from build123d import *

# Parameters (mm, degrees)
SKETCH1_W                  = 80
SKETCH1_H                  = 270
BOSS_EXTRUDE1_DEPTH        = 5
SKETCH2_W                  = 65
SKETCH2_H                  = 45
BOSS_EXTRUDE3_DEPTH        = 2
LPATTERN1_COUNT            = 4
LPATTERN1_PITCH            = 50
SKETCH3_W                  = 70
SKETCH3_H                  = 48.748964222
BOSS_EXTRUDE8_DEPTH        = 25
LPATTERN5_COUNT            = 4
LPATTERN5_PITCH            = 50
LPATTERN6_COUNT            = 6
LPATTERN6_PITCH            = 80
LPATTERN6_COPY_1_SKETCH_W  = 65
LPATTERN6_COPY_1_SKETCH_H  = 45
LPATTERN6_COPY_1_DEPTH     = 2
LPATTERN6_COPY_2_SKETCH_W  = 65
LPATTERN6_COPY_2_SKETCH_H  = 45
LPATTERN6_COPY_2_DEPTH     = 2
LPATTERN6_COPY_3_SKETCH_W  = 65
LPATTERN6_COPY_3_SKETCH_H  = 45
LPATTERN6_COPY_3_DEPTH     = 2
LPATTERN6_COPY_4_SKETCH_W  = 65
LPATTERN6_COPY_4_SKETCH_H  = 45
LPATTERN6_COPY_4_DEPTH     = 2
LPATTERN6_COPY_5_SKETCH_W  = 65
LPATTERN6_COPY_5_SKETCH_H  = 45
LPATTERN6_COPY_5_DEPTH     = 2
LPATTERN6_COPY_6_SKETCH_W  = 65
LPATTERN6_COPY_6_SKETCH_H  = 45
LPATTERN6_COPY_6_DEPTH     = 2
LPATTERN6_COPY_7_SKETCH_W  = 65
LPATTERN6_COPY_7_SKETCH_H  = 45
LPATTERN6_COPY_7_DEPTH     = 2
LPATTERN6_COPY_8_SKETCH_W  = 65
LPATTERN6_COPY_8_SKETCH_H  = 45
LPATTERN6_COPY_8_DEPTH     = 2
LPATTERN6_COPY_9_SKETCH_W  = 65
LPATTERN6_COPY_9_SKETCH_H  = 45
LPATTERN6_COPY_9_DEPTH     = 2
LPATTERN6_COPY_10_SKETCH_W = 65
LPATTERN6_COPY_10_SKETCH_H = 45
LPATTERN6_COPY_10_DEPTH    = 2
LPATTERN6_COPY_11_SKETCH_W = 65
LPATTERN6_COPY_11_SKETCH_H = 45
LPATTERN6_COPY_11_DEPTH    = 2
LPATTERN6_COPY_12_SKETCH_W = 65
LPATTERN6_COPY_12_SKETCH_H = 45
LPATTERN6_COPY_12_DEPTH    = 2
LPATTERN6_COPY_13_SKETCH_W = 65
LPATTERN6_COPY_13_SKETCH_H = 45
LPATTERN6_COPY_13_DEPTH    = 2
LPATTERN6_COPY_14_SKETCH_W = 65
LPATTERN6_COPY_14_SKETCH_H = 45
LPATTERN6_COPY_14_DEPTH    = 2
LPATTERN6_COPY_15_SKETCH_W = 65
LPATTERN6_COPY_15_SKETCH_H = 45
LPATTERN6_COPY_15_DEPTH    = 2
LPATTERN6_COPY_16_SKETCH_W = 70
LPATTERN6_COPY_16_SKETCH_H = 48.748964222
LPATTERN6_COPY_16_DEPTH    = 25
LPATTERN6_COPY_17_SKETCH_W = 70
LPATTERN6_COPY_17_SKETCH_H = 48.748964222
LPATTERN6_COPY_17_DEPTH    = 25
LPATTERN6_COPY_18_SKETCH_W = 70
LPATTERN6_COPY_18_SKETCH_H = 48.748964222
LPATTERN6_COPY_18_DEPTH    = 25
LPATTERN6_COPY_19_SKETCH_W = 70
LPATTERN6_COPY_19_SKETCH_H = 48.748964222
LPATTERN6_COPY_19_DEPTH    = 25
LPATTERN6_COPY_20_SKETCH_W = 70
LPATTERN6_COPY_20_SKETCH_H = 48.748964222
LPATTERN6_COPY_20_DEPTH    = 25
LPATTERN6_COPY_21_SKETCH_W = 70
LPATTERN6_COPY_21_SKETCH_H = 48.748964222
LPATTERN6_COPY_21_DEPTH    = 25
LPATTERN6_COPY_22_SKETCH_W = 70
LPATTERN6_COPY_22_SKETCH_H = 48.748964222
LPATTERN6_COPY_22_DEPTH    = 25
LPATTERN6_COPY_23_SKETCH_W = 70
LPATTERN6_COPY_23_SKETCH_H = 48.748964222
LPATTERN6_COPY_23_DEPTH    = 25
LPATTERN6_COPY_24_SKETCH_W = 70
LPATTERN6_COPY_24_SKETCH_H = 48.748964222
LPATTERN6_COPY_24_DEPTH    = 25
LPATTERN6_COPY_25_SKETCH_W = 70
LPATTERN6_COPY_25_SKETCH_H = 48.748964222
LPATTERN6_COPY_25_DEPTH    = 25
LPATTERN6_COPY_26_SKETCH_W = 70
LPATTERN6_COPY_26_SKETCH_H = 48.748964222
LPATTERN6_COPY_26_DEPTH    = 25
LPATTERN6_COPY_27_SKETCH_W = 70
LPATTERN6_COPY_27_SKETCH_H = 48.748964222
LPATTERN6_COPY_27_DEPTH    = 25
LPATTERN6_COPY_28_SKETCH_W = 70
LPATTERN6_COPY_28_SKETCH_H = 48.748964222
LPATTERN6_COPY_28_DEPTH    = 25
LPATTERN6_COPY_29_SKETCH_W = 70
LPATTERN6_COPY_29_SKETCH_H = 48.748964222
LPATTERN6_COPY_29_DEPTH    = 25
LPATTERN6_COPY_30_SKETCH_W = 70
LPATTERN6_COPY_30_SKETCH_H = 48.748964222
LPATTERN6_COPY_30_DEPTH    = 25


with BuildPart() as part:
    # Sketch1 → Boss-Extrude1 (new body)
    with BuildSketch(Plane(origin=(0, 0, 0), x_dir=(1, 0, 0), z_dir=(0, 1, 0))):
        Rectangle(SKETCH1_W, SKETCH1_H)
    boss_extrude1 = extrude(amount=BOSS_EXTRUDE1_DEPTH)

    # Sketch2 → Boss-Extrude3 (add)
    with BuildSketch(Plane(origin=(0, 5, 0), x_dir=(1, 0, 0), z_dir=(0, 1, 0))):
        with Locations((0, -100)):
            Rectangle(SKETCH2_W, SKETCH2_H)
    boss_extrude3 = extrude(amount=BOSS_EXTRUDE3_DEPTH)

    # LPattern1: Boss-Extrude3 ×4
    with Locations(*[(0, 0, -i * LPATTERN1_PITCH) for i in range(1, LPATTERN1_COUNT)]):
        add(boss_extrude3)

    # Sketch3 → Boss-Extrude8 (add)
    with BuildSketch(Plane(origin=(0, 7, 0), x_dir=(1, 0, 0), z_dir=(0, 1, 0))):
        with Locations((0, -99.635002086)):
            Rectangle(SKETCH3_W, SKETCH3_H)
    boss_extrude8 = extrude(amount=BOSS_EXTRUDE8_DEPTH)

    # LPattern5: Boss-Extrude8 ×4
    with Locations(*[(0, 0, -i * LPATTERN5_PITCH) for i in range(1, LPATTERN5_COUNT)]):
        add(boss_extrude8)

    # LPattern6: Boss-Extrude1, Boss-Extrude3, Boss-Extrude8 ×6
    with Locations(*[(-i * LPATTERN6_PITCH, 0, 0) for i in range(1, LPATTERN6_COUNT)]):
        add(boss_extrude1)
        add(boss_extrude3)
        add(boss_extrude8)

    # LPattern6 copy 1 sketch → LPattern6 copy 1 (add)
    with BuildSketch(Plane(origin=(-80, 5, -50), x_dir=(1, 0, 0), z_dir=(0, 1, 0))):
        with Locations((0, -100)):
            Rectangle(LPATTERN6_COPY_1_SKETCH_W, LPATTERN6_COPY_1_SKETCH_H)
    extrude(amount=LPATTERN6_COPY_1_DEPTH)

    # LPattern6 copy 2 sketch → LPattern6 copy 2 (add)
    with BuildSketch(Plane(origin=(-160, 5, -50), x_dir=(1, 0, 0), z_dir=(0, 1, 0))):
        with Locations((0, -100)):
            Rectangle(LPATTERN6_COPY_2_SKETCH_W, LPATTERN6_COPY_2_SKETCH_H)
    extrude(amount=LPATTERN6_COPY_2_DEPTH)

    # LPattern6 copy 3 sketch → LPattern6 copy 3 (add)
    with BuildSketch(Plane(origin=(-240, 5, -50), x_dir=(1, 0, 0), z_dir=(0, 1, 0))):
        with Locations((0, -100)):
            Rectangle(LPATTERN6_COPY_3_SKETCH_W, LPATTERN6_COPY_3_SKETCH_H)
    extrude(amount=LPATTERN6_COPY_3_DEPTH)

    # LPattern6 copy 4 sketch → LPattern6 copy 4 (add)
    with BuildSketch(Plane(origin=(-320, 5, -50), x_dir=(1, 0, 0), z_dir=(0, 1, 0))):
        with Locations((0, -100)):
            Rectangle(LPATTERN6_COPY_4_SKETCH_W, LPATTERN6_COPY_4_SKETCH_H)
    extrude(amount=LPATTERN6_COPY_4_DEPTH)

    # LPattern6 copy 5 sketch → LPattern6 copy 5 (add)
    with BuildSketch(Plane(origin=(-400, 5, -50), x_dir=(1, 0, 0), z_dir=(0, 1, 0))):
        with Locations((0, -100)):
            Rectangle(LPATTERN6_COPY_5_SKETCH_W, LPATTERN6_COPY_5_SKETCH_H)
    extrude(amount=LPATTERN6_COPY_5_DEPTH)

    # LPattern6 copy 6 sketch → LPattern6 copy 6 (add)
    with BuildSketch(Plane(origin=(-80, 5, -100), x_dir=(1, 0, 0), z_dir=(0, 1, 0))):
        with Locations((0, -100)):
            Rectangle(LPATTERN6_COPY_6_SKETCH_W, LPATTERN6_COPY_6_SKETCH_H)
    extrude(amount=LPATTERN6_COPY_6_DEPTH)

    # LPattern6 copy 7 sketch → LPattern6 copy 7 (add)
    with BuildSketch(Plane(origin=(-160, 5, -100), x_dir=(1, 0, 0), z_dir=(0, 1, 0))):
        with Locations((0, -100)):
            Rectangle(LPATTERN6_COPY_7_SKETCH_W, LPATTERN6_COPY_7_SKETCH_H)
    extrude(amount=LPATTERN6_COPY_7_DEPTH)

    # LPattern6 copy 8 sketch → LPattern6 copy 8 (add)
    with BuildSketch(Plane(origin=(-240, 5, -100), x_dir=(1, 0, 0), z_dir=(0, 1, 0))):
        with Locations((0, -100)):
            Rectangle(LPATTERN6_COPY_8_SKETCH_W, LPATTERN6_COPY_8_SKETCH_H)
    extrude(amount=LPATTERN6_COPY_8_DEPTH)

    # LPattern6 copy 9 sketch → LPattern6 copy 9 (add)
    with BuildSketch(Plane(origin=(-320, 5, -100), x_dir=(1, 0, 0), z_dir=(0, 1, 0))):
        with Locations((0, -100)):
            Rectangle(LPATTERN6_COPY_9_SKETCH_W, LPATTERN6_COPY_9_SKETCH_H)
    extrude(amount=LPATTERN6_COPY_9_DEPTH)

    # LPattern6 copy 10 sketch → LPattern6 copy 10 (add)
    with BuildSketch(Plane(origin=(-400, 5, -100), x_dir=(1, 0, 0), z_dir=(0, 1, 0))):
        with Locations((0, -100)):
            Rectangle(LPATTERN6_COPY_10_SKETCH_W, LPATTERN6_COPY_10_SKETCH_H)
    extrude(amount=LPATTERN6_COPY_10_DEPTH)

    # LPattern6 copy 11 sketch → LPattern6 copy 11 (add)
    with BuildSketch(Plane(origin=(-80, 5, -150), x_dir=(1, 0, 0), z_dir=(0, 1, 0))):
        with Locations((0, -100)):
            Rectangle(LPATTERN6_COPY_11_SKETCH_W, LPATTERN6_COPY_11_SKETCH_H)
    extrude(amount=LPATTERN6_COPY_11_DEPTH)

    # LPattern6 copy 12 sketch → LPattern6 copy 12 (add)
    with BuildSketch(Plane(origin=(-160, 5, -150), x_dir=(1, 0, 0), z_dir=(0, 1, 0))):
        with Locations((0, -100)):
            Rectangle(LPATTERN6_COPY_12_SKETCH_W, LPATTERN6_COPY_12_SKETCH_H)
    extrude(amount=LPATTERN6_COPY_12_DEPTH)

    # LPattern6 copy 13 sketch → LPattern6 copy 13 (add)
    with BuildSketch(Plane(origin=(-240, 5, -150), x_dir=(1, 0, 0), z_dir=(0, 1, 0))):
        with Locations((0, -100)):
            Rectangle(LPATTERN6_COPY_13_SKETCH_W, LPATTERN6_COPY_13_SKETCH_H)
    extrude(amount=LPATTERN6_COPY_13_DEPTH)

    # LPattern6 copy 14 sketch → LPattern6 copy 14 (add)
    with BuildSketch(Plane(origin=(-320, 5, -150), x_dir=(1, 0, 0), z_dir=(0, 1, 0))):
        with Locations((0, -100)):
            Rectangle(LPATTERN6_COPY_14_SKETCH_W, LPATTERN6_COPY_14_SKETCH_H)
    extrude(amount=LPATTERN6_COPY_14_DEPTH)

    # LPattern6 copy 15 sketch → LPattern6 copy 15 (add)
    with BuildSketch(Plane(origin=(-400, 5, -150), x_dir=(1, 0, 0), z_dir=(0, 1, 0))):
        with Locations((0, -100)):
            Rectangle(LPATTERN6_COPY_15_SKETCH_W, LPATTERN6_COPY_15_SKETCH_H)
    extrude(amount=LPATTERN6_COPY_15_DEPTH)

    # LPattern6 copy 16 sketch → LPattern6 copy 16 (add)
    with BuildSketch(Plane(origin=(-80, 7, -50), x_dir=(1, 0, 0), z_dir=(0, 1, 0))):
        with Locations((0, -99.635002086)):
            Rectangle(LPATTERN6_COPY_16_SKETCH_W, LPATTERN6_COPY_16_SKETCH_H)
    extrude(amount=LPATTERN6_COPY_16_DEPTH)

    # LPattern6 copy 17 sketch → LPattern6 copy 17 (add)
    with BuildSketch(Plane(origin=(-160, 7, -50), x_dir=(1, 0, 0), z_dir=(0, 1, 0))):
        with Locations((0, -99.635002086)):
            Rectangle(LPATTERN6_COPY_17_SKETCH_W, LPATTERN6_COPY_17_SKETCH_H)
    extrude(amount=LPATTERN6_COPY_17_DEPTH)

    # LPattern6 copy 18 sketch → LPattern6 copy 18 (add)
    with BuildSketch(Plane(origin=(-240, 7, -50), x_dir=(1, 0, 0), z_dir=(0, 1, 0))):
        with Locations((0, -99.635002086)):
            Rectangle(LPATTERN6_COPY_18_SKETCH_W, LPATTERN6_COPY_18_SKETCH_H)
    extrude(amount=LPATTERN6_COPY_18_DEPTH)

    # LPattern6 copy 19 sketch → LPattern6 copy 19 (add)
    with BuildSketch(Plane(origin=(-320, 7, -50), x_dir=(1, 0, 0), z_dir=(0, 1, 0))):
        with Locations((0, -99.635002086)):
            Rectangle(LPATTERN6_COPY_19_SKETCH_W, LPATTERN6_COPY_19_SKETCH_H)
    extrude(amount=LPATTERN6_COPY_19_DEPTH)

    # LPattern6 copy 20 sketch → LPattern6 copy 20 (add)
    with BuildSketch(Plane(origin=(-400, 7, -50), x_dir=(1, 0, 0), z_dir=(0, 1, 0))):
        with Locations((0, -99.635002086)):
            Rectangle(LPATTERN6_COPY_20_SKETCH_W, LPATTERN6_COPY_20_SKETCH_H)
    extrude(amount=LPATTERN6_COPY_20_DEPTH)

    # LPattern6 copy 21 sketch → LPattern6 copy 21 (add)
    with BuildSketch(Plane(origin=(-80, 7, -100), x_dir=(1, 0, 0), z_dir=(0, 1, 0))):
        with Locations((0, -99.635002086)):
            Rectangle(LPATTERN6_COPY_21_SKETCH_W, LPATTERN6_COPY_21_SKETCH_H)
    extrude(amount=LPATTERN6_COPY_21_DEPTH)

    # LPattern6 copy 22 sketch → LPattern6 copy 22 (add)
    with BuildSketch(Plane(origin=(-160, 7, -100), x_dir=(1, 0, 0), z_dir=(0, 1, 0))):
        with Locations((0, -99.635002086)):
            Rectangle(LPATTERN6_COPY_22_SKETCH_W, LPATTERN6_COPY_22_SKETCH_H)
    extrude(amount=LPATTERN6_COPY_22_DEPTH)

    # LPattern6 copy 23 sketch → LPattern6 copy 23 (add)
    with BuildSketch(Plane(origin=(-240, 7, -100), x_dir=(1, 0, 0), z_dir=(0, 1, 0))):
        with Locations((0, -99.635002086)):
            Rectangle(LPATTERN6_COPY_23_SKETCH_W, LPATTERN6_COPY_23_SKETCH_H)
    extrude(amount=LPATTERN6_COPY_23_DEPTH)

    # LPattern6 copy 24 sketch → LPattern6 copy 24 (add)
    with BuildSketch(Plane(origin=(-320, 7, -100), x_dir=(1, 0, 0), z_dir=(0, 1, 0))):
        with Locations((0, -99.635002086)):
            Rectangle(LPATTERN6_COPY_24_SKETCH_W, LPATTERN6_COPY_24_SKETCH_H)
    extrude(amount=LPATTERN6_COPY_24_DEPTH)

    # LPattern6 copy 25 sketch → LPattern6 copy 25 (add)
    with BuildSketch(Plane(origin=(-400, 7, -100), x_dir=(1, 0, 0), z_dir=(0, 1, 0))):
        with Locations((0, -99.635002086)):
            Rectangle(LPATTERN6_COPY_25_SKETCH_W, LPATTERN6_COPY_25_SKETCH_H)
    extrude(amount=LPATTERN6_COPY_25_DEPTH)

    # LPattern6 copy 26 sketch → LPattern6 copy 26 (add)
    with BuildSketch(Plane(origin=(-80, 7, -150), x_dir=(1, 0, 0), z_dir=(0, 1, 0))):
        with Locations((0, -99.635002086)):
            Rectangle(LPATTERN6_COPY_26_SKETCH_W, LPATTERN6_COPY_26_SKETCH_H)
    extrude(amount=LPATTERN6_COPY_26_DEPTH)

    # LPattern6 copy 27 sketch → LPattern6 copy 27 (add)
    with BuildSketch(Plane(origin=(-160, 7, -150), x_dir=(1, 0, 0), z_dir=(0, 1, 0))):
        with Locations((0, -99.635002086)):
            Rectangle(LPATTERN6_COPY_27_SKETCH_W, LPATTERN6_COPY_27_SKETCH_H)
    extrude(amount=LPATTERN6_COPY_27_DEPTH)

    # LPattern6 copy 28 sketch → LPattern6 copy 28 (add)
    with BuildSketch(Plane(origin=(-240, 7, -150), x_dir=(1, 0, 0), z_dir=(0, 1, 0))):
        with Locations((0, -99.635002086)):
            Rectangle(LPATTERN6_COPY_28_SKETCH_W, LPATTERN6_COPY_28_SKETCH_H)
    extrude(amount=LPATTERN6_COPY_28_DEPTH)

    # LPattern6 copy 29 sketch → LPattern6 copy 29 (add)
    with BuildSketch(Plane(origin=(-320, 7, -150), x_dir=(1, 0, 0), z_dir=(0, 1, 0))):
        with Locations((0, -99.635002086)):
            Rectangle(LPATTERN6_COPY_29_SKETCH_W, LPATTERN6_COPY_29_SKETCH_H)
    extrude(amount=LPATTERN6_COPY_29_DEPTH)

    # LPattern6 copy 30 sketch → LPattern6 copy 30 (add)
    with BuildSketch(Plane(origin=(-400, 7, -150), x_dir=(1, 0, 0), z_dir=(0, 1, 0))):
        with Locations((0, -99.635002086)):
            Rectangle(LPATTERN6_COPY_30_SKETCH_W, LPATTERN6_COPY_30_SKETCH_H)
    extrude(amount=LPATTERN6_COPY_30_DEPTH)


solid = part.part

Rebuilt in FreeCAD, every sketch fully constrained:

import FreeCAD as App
import Part
import Sketcher

V = App.Vector


def add_polygon(sketch, points):
    """Adds a closed chain of lines whose ends are joined by coincident constraints."""
    first, n = sketch.GeometryCount, len(points)
    for a, b in zip(points, points[1:] + points[:1]):
        sketch.addGeometry(Part.LineSegment(App.Vector(*a, 0), App.Vector(*b, 0)), False)
    for i in range(n):
        sketch.addConstraint(Sketcher.Constraint("Coincident", first + i, 2, first + (i + 1) % n, 1))

doc = App.newDocument("Part")
body = doc.addObject("PartDesign::Body", "Body")

# Sketch on XZ plane
sketch1 = body.newObject("Sketcher::SketchObject", "Sketch")
sketch1.AttachmentSupport = (doc.getObject("XZ_Plane"), [""])
sketch1.MapMode = "FlatFace"
add_polygon(sketch1, [(-40, -135), (-40, 135), (40, 135), (40, -135)])  # lines 0-3
sketch1.addConstraint(Sketcher.Constraint("Vertical", 0))
sketch1.addConstraint(Sketcher.Constraint("Horizontal", 1))
sketch1.addConstraint(Sketcher.Constraint("Vertical", 2))
sketch1.addConstraint(Sketcher.Constraint("Horizontal", 3))
sketch1.addConstraint(Sketcher.Constraint("Symmetric", 0, 2, 2, 2, -1, 1))
sketch1.addConstraint(Sketcher.Constraint("DistanceX", 1, 1, 1, 2, 80.0))
sketch1.addConstraint(Sketcher.Constraint("DistanceY", 0, 1, 0, 2, 270.0))
pad1 = body.newObject("PartDesign::Pad", "Pad")
pad1.Profile = sketch1
pad1.Length = 5
pad1.Reversed = True

# Sketch on XZ plane
sketch2 = body.newObject("Sketcher::SketchObject", "Sketch001")
sketch2.AttachmentSupport = (doc.getObject("XZ_Plane"), [""])
sketch2.MapMode = "FlatFace"
sketch2.AttachmentOffset = App.Placement(V(0, 0, -5), App.Rotation())
add_polygon(sketch2, [(-32, 78), (-32, 122), (32, 122), (32, 78)])  # lines 0-3
sketch2.addConstraint(Sketcher.Constraint("Vertical", 0))
sketch2.addConstraint(Sketcher.Constraint("Horizontal", 1))
sketch2.addConstraint(Sketcher.Constraint("Vertical", 2))
sketch2.addConstraint(Sketcher.Constraint("Horizontal", 3))
sketch2.addConstraint(Sketcher.Constraint("DistanceX", 1, 1, 1, 2, 65.0))
sketch2.addConstraint(Sketcher.Constraint("DistanceY", 0, 1, 0, 2, 45.0))
sketch2.addConstraint(Sketcher.Constraint("DistanceX", 0, 2, -1, 1, 32.5))
sketch2.addConstraint(Sketcher.Constraint("DistanceY", -1, 1, 0, 2, 122.5))
pad2 = body.newObject("PartDesign::Pad", "Pad001")
pad2.Profile = sketch2
pad2.Length = 2
pad2.Reversed = True
doc.recompute()

linearpattern = body.newObject("PartDesign::LinearPattern", "LinearPattern")
linearpattern.Originals = [pad2]
linearpattern.Direction = (doc.getObject("Z_Axis"), [""])
linearpattern.Mode = "offset"
linearpattern.Offset = 50
linearpattern.Occurrences = 4
linearpattern.Reversed = True
body.Tip = linearpattern

# Sketch on XZ plane
sketch3 = body.newObject("Sketcher::SketchObject", "Sketch002")
sketch3.AttachmentSupport = (doc.getObject("XZ_Plane"), [""])
sketch3.MapMode = "FlatFace"
sketch3.AttachmentOffset = App.Placement(V(0, 0, -7), App.Rotation())
add_polygon(sketch3, [(-35, 75), (-35, 124), (35, 124), (35, 75)])  # lines 0-3
sketch3.addConstraint(Sketcher.Constraint("Vertical", 0))
sketch3.addConstraint(Sketcher.Constraint("Horizontal", 1))
sketch3.addConstraint(Sketcher.Constraint("Vertical", 2))
sketch3.addConstraint(Sketcher.Constraint("Horizontal", 3))
sketch3.addConstraint(Sketcher.Constraint("DistanceX", 1, 1, 1, 2, 70.0))
sketch3.addConstraint(Sketcher.Constraint("DistanceX", 0, 2, -1, 1, 35.0))
sketch3.addConstraint(Sketcher.Constraint("DistanceY", 0, 1, 0, 2, 48.748964))
sketch3.addConstraint(Sketcher.Constraint("DistanceY", -1, 1, 2, 2, 75.26052))
pad3 = body.newObject("PartDesign::Pad", "Pad002")
pad3.Profile = sketch3
pad3.Length = 25
pad3.Reversed = True
doc.recompute()

linearpattern2 = body.newObject("PartDesign::LinearPattern", "LinearPattern001")
linearpattern2.Originals = [pad3]
linearpattern2.Direction = (doc.getObject("Z_Axis"), [""])
linearpattern2.Mode = "offset"
linearpattern2.Offset = 50
linearpattern2.Occurrences = 4
linearpattern2.Reversed = True
body.Tip = linearpattern2
doc.recompute()

linearpattern3 = body.newObject("PartDesign::LinearPattern", "LinearPattern002")
linearpattern3.Originals = [pad1, pad2, pad3]
linearpattern3.Direction = (doc.getObject("X_Axis"), [""])
linearpattern3.Mode = "offset"
linearpattern3.Offset = 80
linearpattern3.Occurrences = 6
linearpattern3.Reversed = True
body.Tip = linearpattern3

# Sketch on XZ plane
sketch4 = body.newObject("Sketcher::SketchObject", "Sketch003")
sketch4.AttachmentSupport = (doc.getObject("XZ_Plane"), [""])
sketch4.MapMode = "FlatFace"
sketch4.AttachmentOffset = App.Placement(V(0, 0, -5), App.Rotation())
add_polygon(sketch4, [(-112, 28), (-112, 72), (-48, 72), (-48, 28)])  # lines 0-3
sketch4.addConstraint(Sketcher.Constraint("Vertical", 0))
sketch4.addConstraint(Sketcher.Constraint("Horizontal", 1))
sketch4.addConstraint(Sketcher.Constraint("Vertical", 2))
sketch4.addConstraint(Sketcher.Constraint("Horizontal", 3))
sketch4.addConstraint(Sketcher.Constraint("DistanceX", 1, 1, 1, 2, 65.0))
sketch4.addConstraint(Sketcher.Constraint("DistanceY", 0, 1, 0, 2, 45.0))
sketch4.addConstraint(Sketcher.Constraint("DistanceX", 0, 2, -1, 1, 112.5))
sketch4.addConstraint(Sketcher.Constraint("DistanceY", -1, 1, 0, 2, 72.5))
pad4 = body.newObject("PartDesign::Pad", "Pad003")
pad4.Profile = sketch4
pad4.Length = 2
pad4.Reversed = True

# Sketch on XZ plane
sketch5 = body.newObject("Sketcher::SketchObject", "Sketch004")
sketch5.AttachmentSupport = (doc.getObject("XZ_Plane"), [""])
sketch5.MapMode = "FlatFace"
sketch5.AttachmentOffset = App.Placement(V(0, 0, -5), App.Rotation())
add_polygon(sketch5, [(-192, 28), (-192, 72), (-128, 72), (-128, 28)])  # lines 0-3
sketch5.addConstraint(Sketcher.Constraint("Vertical", 0))
sketch5.addConstraint(Sketcher.Constraint("Horizontal", 1))
sketch5.addConstraint(Sketcher.Constraint("Vertical", 2))
sketch5.addConstraint(Sketcher.Constraint("Horizontal", 3))
sketch5.addConstraint(Sketcher.Constraint("DistanceX", 1, 1, 1, 2, 65.0))
sketch5.addConstraint(Sketcher.Constraint("DistanceY", 0, 1, 0, 2, 45.0))
sketch5.addConstraint(Sketcher.Constraint("DistanceX", 0, 2, -1, 1, 192.5))
sketch5.addConstraint(Sketcher.Constraint("DistanceY", -1, 1, 0, 2, 72.5))
pad5 = body.newObject("PartDesign::Pad", "Pad004")
pad5.Profile = sketch5
pad5.Length = 2
pad5.Reversed = True

# Sketch on XZ plane
sketch6 = body.newObject("Sketcher::SketchObject", "Sketch005")
sketch6.AttachmentSupport = (doc.getObject("XZ_Plane"), [""])
sketch6.MapMode = "FlatFace"
sketch6.AttachmentOffset = App.Placement(V(0, 0, -5), App.Rotation())
add_polygon(sketch6, [(-272, 28), (-272, 72), (-208, 72), (-208, 28)])  # lines 0-3
sketch6.addConstraint(Sketcher.Constraint("Vertical", 0))
sketch6.addConstraint(Sketcher.Constraint("Horizontal", 1))
sketch6.addConstraint(Sketcher.Constraint("Vertical", 2))
sketch6.addConstraint(Sketcher.Constraint("Horizontal", 3))
sketch6.addConstraint(Sketcher.Constraint("DistanceX", 1, 1, 1, 2, 65.0))
sketch6.addConstraint(Sketcher.Constraint("DistanceY", 0, 1, 0, 2, 45.0))
sketch6.addConstraint(Sketcher.Constraint("DistanceX", 0, 2, -1, 1, 272.5))
sketch6.addConstraint(Sketcher.Constraint("DistanceY", -1, 1, 0, 2, 72.5))
pad6 = body.newObject("PartDesign::Pad", "Pad005")
pad6.Profile = sketch6
pad6.Length = 2
pad6.Reversed = True

# Sketch on XZ plane
sketch7 = body.newObject("Sketcher::SketchObject", "Sketch006")
sketch7.AttachmentSupport = (doc.getObject("XZ_Plane"), [""])
sketch7.MapMode = "FlatFace"
sketch7.AttachmentOffset = App.Placement(V(0, 0, -5), App.Rotation())
add_polygon(sketch7, [(-352, 28), (-352, 72), (-288, 72), (-288, 28)])  # lines 0-3
sketch7.addConstraint(Sketcher.Constraint("Vertical", 0))
sketch7.addConstraint(Sketcher.Constraint("Horizontal", 1))
sketch7.addConstraint(Sketcher.Constraint("Vertical", 2))
sketch7.addConstraint(Sketcher.Constraint("Horizontal", 3))
sketch7.addConstraint(Sketcher.Constraint("DistanceX", 1, 1, 1, 2, 65.0))
sketch7.addConstraint(Sketcher.Constraint("DistanceY", 0, 1, 0, 2, 45.0))
sketch7.addConstraint(Sketcher.Constraint("DistanceX", 0, 2, -1, 1, 352.5))
sketch7.addConstraint(Sketcher.Constraint("DistanceY", -1, 1, 0, 2, 72.5))
pad7 = body.newObject("PartDesign::Pad", "Pad006")
pad7.Profile = sketch7
pad7.Length = 2
pad7.Reversed = True

# Sketch on XZ plane
sketch8 = body.newObject("Sketcher::SketchObject", "Sketch007")
sketch8.AttachmentSupport = (doc.getObject("XZ_Plane"), [""])
sketch8.MapMode = "FlatFace"
sketch8.AttachmentOffset = App.Placement(V(0, 0, -5), App.Rotation())
add_polygon(sketch8, [(-432, 28), (-432, 72), (-368, 72), (-368, 28)])  # lines 0-3
sketch8.addConstraint(Sketcher.Constraint("Vertical", 0))
sketch8.addConstraint(Sketcher.Constraint("Horizontal", 1))
sketch8.addConstraint(Sketcher.Constraint("Vertical", 2))
sketch8.addConstraint(Sketcher.Constraint("Horizontal", 3))
sketch8.addConstraint(Sketcher.Constraint("DistanceX", 1, 1, 1, 2, 65.0))
sketch8.addConstraint(Sketcher.Constraint("DistanceY", 0, 1, 0, 2, 45.0))
sketch8.addConstraint(Sketcher.Constraint("DistanceX", 0, 2, -1, 1, 432.5))
sketch8.addConstraint(Sketcher.Constraint("DistanceY", -1, 1, 0, 2, 72.5))
pad8 = body.newObject("PartDesign::Pad", "Pad007")
pad8.Profile = sketch8
pad8.Length = 2
pad8.Reversed = True

# Sketch on XZ plane
sketch9 = body.newObject("Sketcher::SketchObject", "Sketch008")
sketch9.AttachmentSupport = (doc.getObject("XZ_Plane"), [""])
sketch9.MapMode = "FlatFace"
sketch9.AttachmentOffset = App.Placement(V(0, 0, -5), App.Rotation())
add_polygon(sketch9, [(-112, -22), (-112, 22), (-48, 22), (-48, -22)])  # lines 0-3
sketch9.addConstraint(Sketcher.Constraint("Vertical", 0))
sketch9.addConstraint(Sketcher.Constraint("Horizontal", 1))
sketch9.addConstraint(Sketcher.Constraint("Vertical", 2))
sketch9.addConstraint(Sketcher.Constraint("Horizontal", 3))
sketch9.addConstraint(Sketcher.Constraint("DistanceX", 1, 1, 1, 2, 65.0))
sketch9.addConstraint(Sketcher.Constraint("DistanceY", 0, 1, 0, 2, 45.0))
sketch9.addConstraint(Sketcher.Constraint("DistanceX", 0, 2, -1, 1, 112.5))
sketch9.addConstraint(Sketcher.Constraint("DistanceY", -1, 1, 0, 2, 22.5))
pad9 = body.newObject("PartDesign::Pad", "Pad008")
pad9.Profile = sketch9
pad9.Length = 2
pad9.Reversed = True

# Sketch on XZ plane
sketch10 = body.newObject("Sketcher::SketchObject", "Sketch009")
sketch10.AttachmentSupport = (doc.getObject("XZ_Plane"), [""])
sketch10.MapMode = "FlatFace"
sketch10.AttachmentOffset = App.Placement(V(0, 0, -5), App.Rotation())
add_polygon(sketch10, [(-192, -22), (-192, 22), (-128, 22), (-128, -22)])  # lines 0-3
sketch10.addConstraint(Sketcher.Constraint("Vertical", 0))
sketch10.addConstraint(Sketcher.Constraint("Horizontal", 1))
sketch10.addConstraint(Sketcher.Constraint("Vertical", 2))
sketch10.addConstraint(Sketcher.Constraint("Horizontal", 3))
sketch10.addConstraint(Sketcher.Constraint("DistanceX", 1, 1, 1, 2, 65.0))
sketch10.addConstraint(Sketcher.Constraint("DistanceY", 0, 1, 0, 2, 45.0))
sketch10.addConstraint(Sketcher.Constraint("DistanceX", 0, 2, -1, 1, 192.5))
sketch10.addConstraint(Sketcher.Constraint("DistanceY", -1, 1, 0, 2, 22.5))
pad10 = body.newObject("PartDesign::Pad", "Pad009")
pad10.Profile = sketch10
pad10.Length = 2
pad10.Reversed = True

# Sketch on XZ plane
sketch11 = body.newObject("Sketcher::SketchObject", "Sketch010")
sketch11.AttachmentSupport = (doc.getObject("XZ_Plane"), [""])
sketch11.MapMode = "FlatFace"
sketch11.AttachmentOffset = App.Placement(V(0, 0, -5), App.Rotation())
add_polygon(sketch11, [(-272, -22), (-272, 22), (-208, 22), (-208, -22)])  # lines 0-3
sketch11.addConstraint(Sketcher.Constraint("Vertical", 0))
sketch11.addConstraint(Sketcher.Constraint("Horizontal", 1))
sketch11.addConstraint(Sketcher.Constraint("Vertical", 2))
sketch11.addConstraint(Sketcher.Constraint("Horizontal", 3))
sketch11.addConstraint(Sketcher.Constraint("DistanceX", 1, 1, 1, 2, 65.0))
sketch11.addConstraint(Sketcher.Constraint("DistanceY", 0, 1, 0, 2, 45.0))
sketch11.addConstraint(Sketcher.Constraint("DistanceX", 0, 2, -1, 1, 272.5))
sketch11.addConstraint(Sketcher.Constraint("DistanceY", -1, 1, 0, 2, 22.5))
pad11 = body.newObject("PartDesign::Pad", "Pad010")
pad11.Profile = sketch11
pad11.Length = 2
pad11.Reversed = True

# Sketch on XZ plane
sketch12 = body.newObject("Sketcher::SketchObject", "Sketch011")
sketch12.AttachmentSupport = (doc.getObject("XZ_Plane"), [""])
sketch12.MapMode = "FlatFace"
sketch12.AttachmentOffset = App.Placement(V(0, 0, -5), App.Rotation())
add_polygon(sketch12, [(-352, -22), (-352, 22), (-288, 22), (-288, -22)])  # lines 0-3
sketch12.addConstraint(Sketcher.Constraint("Vertical", 0))
sketch12.addConstraint(Sketcher.Constraint("Horizontal", 1))
sketch12.addConstraint(Sketcher.Constraint("Vertical", 2))
sketch12.addConstraint(Sketcher.Constraint("Horizontal", 3))
sketch12.addConstraint(Sketcher.Constraint("DistanceX", 1, 1, 1, 2, 65.0))
sketch12.addConstraint(Sketcher.Constraint("DistanceY", 0, 1, 0, 2, 45.0))
sketch12.addConstraint(Sketcher.Constraint("DistanceX", 0, 2, -1, 1, 352.5))
sketch12.addConstraint(Sketcher.Constraint("DistanceY", -1, 1, 0, 2, 22.5))
pad12 = body.newObject("PartDesign::Pad", "Pad011")
pad12.Profile = sketch12
pad12.Length = 2
pad12.Reversed = True

# Sketch on XZ plane
sketch13 = body.newObject("Sketcher::SketchObject", "Sketch012")
sketch13.AttachmentSupport = (doc.getObject("XZ_Plane"), [""])
sketch13.MapMode = "FlatFace"
sketch13.AttachmentOffset = App.Placement(V(0, 0, -5), App.Rotation())
add_polygon(sketch13, [(-432, -22), (-432, 22), (-368, 22), (-368, -22)])  # lines 0-3
sketch13.addConstraint(Sketcher.Constraint("Vertical", 0))
sketch13.addConstraint(Sketcher.Constraint("Horizontal", 1))
sketch13.addConstraint(Sketcher.Constraint("Vertical", 2))
sketch13.addConstraint(Sketcher.Constraint("Horizontal", 3))
sketch13.addConstraint(Sketcher.Constraint("DistanceX", 1, 1, 1, 2, 65.0))
sketch13.addConstraint(Sketcher.Constraint("DistanceY", 0, 1, 0, 2, 45.0))
sketch13.addConstraint(Sketcher.Constraint("DistanceX", 0, 2, -1, 1, 432.5))
sketch13.addConstraint(Sketcher.Constraint("DistanceY", -1, 1, 0, 2, 22.5))
pad13 = body.newObject("PartDesign::Pad", "Pad012")
pad13.Profile = sketch13
pad13.Length = 2
pad13.Reversed = True

# Sketch on XZ plane
sketch14 = body.newObject("Sketcher::SketchObject", "Sketch013")
sketch14.AttachmentSupport = (doc.getObject("XZ_Plane"), [""])
sketch14.MapMode = "FlatFace"
sketch14.AttachmentOffset = App.Placement(V(0, 0, -5), App.Rotation())
add_polygon(sketch14, [(-112, -72), (-112, -28), (-48, -28), (-48, -72)])  # lines 0-3
sketch14.addConstraint(Sketcher.Constraint("Vertical", 0))
sketch14.addConstraint(Sketcher.Constraint("Horizontal", 1))
sketch14.addConstraint(Sketcher.Constraint("Vertical", 2))
sketch14.addConstraint(Sketcher.Constraint("Horizontal", 3))
sketch14.addConstraint(Sketcher.Constraint("DistanceX", 1, 1, 1, 2, 65.0))
sketch14.addConstraint(Sketcher.Constraint("DistanceY", 0, 1, 0, 2, 45.0))
sketch14.addConstraint(Sketcher.Constraint("DistanceX", 0, 2, -1, 1, 112.5))
sketch14.addConstraint(Sketcher.Constraint("DistanceY", 0, 2, -1, 1, 27.5))
pad14 = body.newObject("PartDesign::Pad", "Pad013")
pad14.Profile = sketch14
pad14.Length = 2
pad14.Reversed = True

# Sketch on XZ plane
sketch15 = body.newObject("Sketcher::SketchObject", "Sketch014")
sketch15.AttachmentSupport = (doc.getObject("XZ_Plane"), [""])
sketch15.MapMode = "FlatFace"
sketch15.AttachmentOffset = App.Placement(V(0, 0, -5), App.Rotation())
add_polygon(sketch15, [(-192, -72), (-192, -28), (-128, -28), (-128, -72)])  # lines 0-3
sketch15.addConstraint(Sketcher.Constraint("Vertical", 0))
sketch15.addConstraint(Sketcher.Constraint("Horizontal", 1))
sketch15.addConstraint(Sketcher.Constraint("Vertical", 2))
sketch15.addConstraint(Sketcher.Constraint("Horizontal", 3))
sketch15.addConstraint(Sketcher.Constraint("DistanceX", 1, 1, 1, 2, 65.0))
sketch15.addConstraint(Sketcher.Constraint("DistanceY", 0, 1, 0, 2, 45.0))
sketch15.addConstraint(Sketcher.Constraint("DistanceX", 0, 2, -1, 1, 192.5))
sketch15.addConstraint(Sketcher.Constraint("DistanceY", 0, 2, -1, 1, 27.5))
pad15 = body.newObject("PartDesign::Pad", "Pad014")
pad15.Profile = sketch15
pad15.Length = 2
pad15.Reversed = True

# Sketch on XZ plane
sketch16 = body.newObject("Sketcher::SketchObject", "Sketch015")
sketch16.AttachmentSupport = (doc.getObject("XZ_Plane"), [""])
sketch16.MapMode = "FlatFace"
sketch16.AttachmentOffset = App.Placement(V(0, 0, -5), App.Rotation())
add_polygon(sketch16, [(-272, -72), (-272, -28), (-208, -28), (-208, -72)])  # lines 0-3
sketch16.addConstraint(Sketcher.Constraint("Vertical", 0))
sketch16.addConstraint(Sketcher.Constraint("Horizontal", 1))
sketch16.addConstraint(Sketcher.Constraint("Vertical", 2))
sketch16.addConstraint(Sketcher.Constraint("Horizontal", 3))
sketch16.addConstraint(Sketcher.Constraint("DistanceX", 1, 1, 1, 2, 65.0))
sketch16.addConstraint(Sketcher.Constraint("DistanceY", 0, 1, 0, 2, 45.0))
sketch16.addConstraint(Sketcher.Constraint("DistanceX", 0, 2, -1, 1, 272.5))
sketch16.addConstraint(Sketcher.Constraint("DistanceY", 0, 2, -1, 1, 27.5))
pad16 = body.newObject("PartDesign::Pad", "Pad015")
pad16.Profile = sketch16
pad16.Length = 2
pad16.Reversed = True

# Sketch on XZ plane
sketch17 = body.newObject("Sketcher::SketchObject", "Sketch016")
sketch17.AttachmentSupport = (doc.getObject("XZ_Plane"), [""])
sketch17.MapMode = "FlatFace"
sketch17.AttachmentOffset = App.Placement(V(0, 0, -5), App.Rotation())
add_polygon(sketch17, [(-352, -72), (-352, -28), (-288, -28), (-288, -72)])  # lines 0-3
sketch17.addConstraint(Sketcher.Constraint("Vertical", 0))
sketch17.addConstraint(Sketcher.Constraint("Horizontal", 1))
sketch17.addConstraint(Sketcher.Constraint("Vertical", 2))
sketch17.addConstraint(Sketcher.Constraint("Horizontal", 3))
sketch17.addConstraint(Sketcher.Constraint("DistanceX", 1, 1, 1, 2, 65.0))
sketch17.addConstraint(Sketcher.Constraint("DistanceY", 0, 1, 0, 2, 45.0))
sketch17.addConstraint(Sketcher.Constraint("DistanceX", 0, 2, -1, 1, 352.5))
sketch17.addConstraint(Sketcher.Constraint("DistanceY", 0, 2, -1, 1, 27.5))
pad17 = body.newObject("PartDesign::Pad", "Pad016")
pad17.Profile = sketch17
pad17.Length = 2
pad17.Reversed = True

# Sketch on XZ plane
sketch18 = body.newObject("Sketcher::SketchObject", "Sketch017")
sketch18.AttachmentSupport = (doc.getObject("XZ_Plane"), [""])
sketch18.MapMode = "FlatFace"
sketch18.AttachmentOffset = App.Placement(V(0, 0, -5), App.Rotation())
add_polygon(sketch18, [(-432, -72), (-432, -28), (-368, -28), (-368, -72)])  # lines 0-3
sketch18.addConstraint(Sketcher.Constraint("Vertical", 0))
sketch18.addConstraint(Sketcher.Constraint("Horizontal", 1))
sketch18.addConstraint(Sketcher.Constraint("Vertical", 2))
sketch18.addConstraint(Sketcher.Constraint("Horizontal", 3))
sketch18.addConstraint(Sketcher.Constraint("DistanceX", 1, 1, 1, 2, 65.0))
sketch18.addConstraint(Sketcher.Constraint("DistanceY", 0, 1, 0, 2, 45.0))
sketch18.addConstraint(Sketcher.Constraint("DistanceX", 0, 2, -1, 1, 432.5))
sketch18.addConstraint(Sketcher.Constraint("DistanceY", 0, 2, -1, 1, 27.5))
pad18 = body.newObject("PartDesign::Pad", "Pad017")
pad18.Profile = sketch18
pad18.Length = 2
pad18.Reversed = True

# Sketch on XZ plane
sketch19 = body.newObject("Sketcher::SketchObject", "Sketch018")
sketch19.AttachmentSupport = (doc.getObject("XZ_Plane"), [""])
sketch19.MapMode = "FlatFace"
sketch19.AttachmentOffset = App.Placement(V(0, 0, -7), App.Rotation())
add_polygon(sketch19, [(-115, 25), (-115, 74), (-45, 74), (-45, 25)])  # lines 0-3
sketch19.addConstraint(Sketcher.Constraint("Vertical", 0))
sketch19.addConstraint(Sketcher.Constraint("Horizontal", 1))
sketch19.addConstraint(Sketcher.Constraint("Vertical", 2))
sketch19.addConstraint(Sketcher.Constraint("Horizontal", 3))
sketch19.addConstraint(Sketcher.Constraint("DistanceX", 1, 1, 1, 2, 70.0))
sketch19.addConstraint(Sketcher.Constraint("DistanceX", 0, 2, -1, 1, 115.0))
sketch19.addConstraint(Sketcher.Constraint("DistanceY", 0, 1, 0, 2, 48.748964))
sketch19.addConstraint(Sketcher.Constraint("DistanceY", -1, 1, 2, 2, 25.26052))
pad19 = body.newObject("PartDesign::Pad", "Pad018")
pad19.Profile = sketch19
pad19.Length = 25
pad19.Reversed = True

# Sketch on XZ plane
sketch20 = body.newObject("Sketcher::SketchObject", "Sketch019")
sketch20.AttachmentSupport = (doc.getObject("XZ_Plane"), [""])
sketch20.MapMode = "FlatFace"
sketch20.AttachmentOffset = App.Placement(V(0, 0, -7), App.Rotation())
add_polygon(sketch20, [(-195, 25), (-195, 74), (-125, 74), (-125, 25)])  # lines 0-3
sketch20.addConstraint(Sketcher.Constraint("Vertical", 0))
sketch20.addConstraint(Sketcher.Constraint("Horizontal", 1))
sketch20.addConstraint(Sketcher.Constraint("Vertical", 2))
sketch20.addConstraint(Sketcher.Constraint("Horizontal", 3))
sketch20.addConstraint(Sketcher.Constraint("DistanceX", 1, 1, 1, 2, 70.0))
sketch20.addConstraint(Sketcher.Constraint("DistanceX", 0, 2, -1, 1, 195.0))
sketch20.addConstraint(Sketcher.Constraint("DistanceY", 0, 1, 0, 2, 48.748964))
sketch20.addConstraint(Sketcher.Constraint("DistanceY", -1, 1, 2, 2, 25.26052))
pad20 = body.newObject("PartDesign::Pad", "Pad019")
pad20.Profile = sketch20
pad20.Length = 25
pad20.Reversed = True

# Sketch on XZ plane
sketch21 = body.newObject("Sketcher::SketchObject", "Sketch020")
sketch21.AttachmentSupport = (doc.getObject("XZ_Plane"), [""])
sketch21.MapMode = "FlatFace"
sketch21.AttachmentOffset = App.Placement(V(0, 0, -7), App.Rotation())
add_polygon(sketch21, [(-275, 25), (-275, 74), (-205, 74), (-205, 25)])  # lines 0-3
sketch21.addConstraint(Sketcher.Constraint("Vertical", 0))
sketch21.addConstraint(Sketcher.Constraint("Horizontal", 1))
sketch21.addConstraint(Sketcher.Constraint("Vertical", 2))
sketch21.addConstraint(Sketcher.Constraint("Horizontal", 3))
sketch21.addConstraint(Sketcher.Constraint("DistanceX", 1, 1, 1, 2, 70.0))
sketch21.addConstraint(Sketcher.Constraint("DistanceX", 0, 2, -1, 1, 275.0))
sketch21.addConstraint(Sketcher.Constraint("DistanceY", 0, 1, 0, 2, 48.748964))
sketch21.addConstraint(Sketcher.Constraint("DistanceY", -1, 1, 2, 2, 25.26052))
pad21 = body.newObject("PartDesign::Pad", "Pad020")
pad21.Profile = sketch21
pad21.Length = 25
pad21.Reversed = True

# Sketch on XZ plane
sketch22 = body.newObject("Sketcher::SketchObject", "Sketch021")
sketch22.AttachmentSupport = (doc.getObject("XZ_Plane"), [""])
sketch22.MapMode = "FlatFace"
sketch22.AttachmentOffset = App.Placement(V(0, 0, -7), App.Rotation())
add_polygon(sketch22, [(-355, 25), (-355, 74), (-285, 74), (-285, 25)])  # lines 0-3
sketch22.addConstraint(Sketcher.Constraint("Vertical", 0))
sketch22.addConstraint(Sketcher.Constraint("Horizontal", 1))
sketch22.addConstraint(Sketcher.Constraint("Vertical", 2))
sketch22.addConstraint(Sketcher.Constraint("Horizontal", 3))
sketch22.addConstraint(Sketcher.Constraint("DistanceX", 1, 1, 1, 2, 70.0))
sketch22.addConstraint(Sketcher.Constraint("DistanceX", 0, 2, -1, 1, 355.0))
sketch22.addConstraint(Sketcher.Constraint("DistanceY", 0, 1, 0, 2, 48.748964))
sketch22.addConstraint(Sketcher.Constraint("DistanceY", -1, 1, 2, 2, 25.26052))
pad22 = body.newObject("PartDesign::Pad", "Pad021")
pad22.Profile = sketch22
pad22.Length = 25
pad22.Reversed = True

# Sketch on XZ plane
sketch23 = body.newObject("Sketcher::SketchObject", "Sketch022")
sketch23.AttachmentSupport = (doc.getObject("XZ_Plane"), [""])
sketch23.MapMode = "FlatFace"
sketch23.AttachmentOffset = App.Placement(V(0, 0, -7), App.Rotation())
add_polygon(sketch23, [(-435, 25), (-435, 74), (-365, 74), (-365, 25)])  # lines 0-3
sketch23.addConstraint(Sketcher.Constraint("Vertical", 0))
sketch23.addConstraint(Sketcher.Constraint("Horizontal", 1))
sketch23.addConstraint(Sketcher.Constraint("Vertical", 2))
sketch23.addConstraint(Sketcher.Constraint("Horizontal", 3))
sketch23.addConstraint(Sketcher.Constraint("DistanceX", 1, 1, 1, 2, 70.0))
sketch23.addConstraint(Sketcher.Constraint("DistanceX", 0, 2, -1, 1, 435.0))
sketch23.addConstraint(Sketcher.Constraint("DistanceY", 0, 1, 0, 2, 48.748964))
sketch23.addConstraint(Sketcher.Constraint("DistanceY", -1, 1, 2, 2, 25.26052))
pad23 = body.newObject("PartDesign::Pad", "Pad022")
pad23.Profile = sketch23
pad23.Length = 25
pad23.Reversed = True

# Sketch on XZ plane
sketch24 = body.newObject("Sketcher::SketchObject", "Sketch023")
sketch24.AttachmentSupport = (doc.getObject("XZ_Plane"), [""])
sketch24.MapMode = "FlatFace"
sketch24.AttachmentOffset = App.Placement(V(0, 0, -7), App.Rotation())
add_polygon(sketch24, [(-115, -25), (-115, 24), (-45, 24), (-45, -25)])  # lines 0-3
sketch24.addConstraint(Sketcher.Constraint("Vertical", 0))
sketch24.addConstraint(Sketcher.Constraint("Horizontal", 1))
sketch24.addConstraint(Sketcher.Constraint("Vertical", 2))
sketch24.addConstraint(Sketcher.Constraint("Horizontal", 3))
sketch24.addConstraint(Sketcher.Constraint("DistanceX", 1, 1, 1, 2, 70.0))
sketch24.addConstraint(Sketcher.Constraint("DistanceX", 0, 2, -1, 1, 115.0))
sketch24.addConstraint(Sketcher.Constraint("DistanceY", 0, 1, 0, 2, 48.748964))
sketch24.addConstraint(Sketcher.Constraint("DistanceY", 2, 2, -1, 1, 24.73948))
pad24 = body.newObject("PartDesign::Pad", "Pad023")
pad24.Profile = sketch24
pad24.Length = 25
pad24.Reversed = True

# Sketch on XZ plane
sketch25 = body.newObject("Sketcher::SketchObject", "Sketch024")
sketch25.AttachmentSupport = (doc.getObject("XZ_Plane"), [""])
sketch25.MapMode = "FlatFace"
sketch25.AttachmentOffset = App.Placement(V(0, 0, -7), App.Rotation())
add_polygon(sketch25, [(-195, -25), (-195, 24), (-125, 24), (-125, -25)])  # lines 0-3
sketch25.addConstraint(Sketcher.Constraint("Vertical", 0))
sketch25.addConstraint(Sketcher.Constraint("Horizontal", 1))
sketch25.addConstraint(Sketcher.Constraint("Vertical", 2))
sketch25.addConstraint(Sketcher.Constraint("Horizontal", 3))
sketch25.addConstraint(Sketcher.Constraint("DistanceX", 1, 1, 1, 2, 70.0))
sketch25.addConstraint(Sketcher.Constraint("DistanceX", 0, 2, -1, 1, 195.0))
sketch25.addConstraint(Sketcher.Constraint("DistanceY", 0, 1, 0, 2, 48.748964))
sketch25.addConstraint(Sketcher.Constraint("DistanceY", 2, 2, -1, 1, 24.73948))
pad25 = body.newObject("PartDesign::Pad", "Pad024")
pad25.Profile = sketch25
pad25.Length = 25
pad25.Reversed = True

# Sketch on XZ plane
sketch26 = body.newObject("Sketcher::SketchObject", "Sketch025")
sketch26.AttachmentSupport = (doc.getObject("XZ_Plane"), [""])
sketch26.MapMode = "FlatFace"
sketch26.AttachmentOffset = App.Placement(V(0, 0, -7), App.Rotation())
add_polygon(sketch26, [(-275, -25), (-275, 24), (-205, 24), (-205, -25)])  # lines 0-3
sketch26.addConstraint(Sketcher.Constraint("Vertical", 0))
sketch26.addConstraint(Sketcher.Constraint("Horizontal", 1))
sketch26.addConstraint(Sketcher.Constraint("Vertical", 2))
sketch26.addConstraint(Sketcher.Constraint("Horizontal", 3))
sketch26.addConstraint(Sketcher.Constraint("DistanceX", 1, 1, 1, 2, 70.0))
sketch26.addConstraint(Sketcher.Constraint("DistanceX", 0, 2, -1, 1, 275.0))
sketch26.addConstraint(Sketcher.Constraint("DistanceY", 0, 1, 0, 2, 48.748964))
sketch26.addConstraint(Sketcher.Constraint("DistanceY", 2, 2, -1, 1, 24.73948))
pad26 = body.newObject("PartDesign::Pad", "Pad025")
pad26.Profile = sketch26
pad26.Length = 25
pad26.Reversed = True

# Sketch on XZ plane
sketch27 = body.newObject("Sketcher::SketchObject", "Sketch026")
sketch27.AttachmentSupport = (doc.getObject("XZ_Plane"), [""])
sketch27.MapMode = "FlatFace"
sketch27.AttachmentOffset = App.Placement(V(0, 0, -7), App.Rotation())
add_polygon(sketch27, [(-355, -25), (-355, 24), (-285, 24), (-285, -25)])  # lines 0-3
sketch27.addConstraint(Sketcher.Constraint("Vertical", 0))
sketch27.addConstraint(Sketcher.Constraint("Horizontal", 1))
sketch27.addConstraint(Sketcher.Constraint("Vertical", 2))
sketch27.addConstraint(Sketcher.Constraint("Horizontal", 3))
sketch27.addConstraint(Sketcher.Constraint("DistanceX", 1, 1, 1, 2, 70.0))
sketch27.addConstraint(Sketcher.Constraint("DistanceX", 0, 2, -1, 1, 355.0))
sketch27.addConstraint(Sketcher.Constraint("DistanceY", 0, 1, 0, 2, 48.748964))
sketch27.addConstraint(Sketcher.Constraint("DistanceY", 2, 2, -1, 1, 24.73948))
pad27 = body.newObject("PartDesign::Pad", "Pad026")
pad27.Profile = sketch27
pad27.Length = 25
pad27.Reversed = True

# Sketch on XZ plane
sketch28 = body.newObject("Sketcher::SketchObject", "Sketch027")
sketch28.AttachmentSupport = (doc.getObject("XZ_Plane"), [""])
sketch28.MapMode = "FlatFace"
sketch28.AttachmentOffset = App.Placement(V(0, 0, -7), App.Rotation())
add_polygon(sketch28, [(-435, -25), (-435, 24), (-365, 24), (-365, -25)])  # lines 0-3
sketch28.addConstraint(Sketcher.Constraint("Vertical", 0))
sketch28.addConstraint(Sketcher.Constraint("Horizontal", 1))
sketch28.addConstraint(Sketcher.Constraint("Vertical", 2))
sketch28.addConstraint(Sketcher.Constraint("Horizontal", 3))
sketch28.addConstraint(Sketcher.Constraint("DistanceX", 1, 1, 1, 2, 70.0))
sketch28.addConstraint(Sketcher.Constraint("DistanceX", 0, 2, -1, 1, 435.0))
sketch28.addConstraint(Sketcher.Constraint("DistanceY", 0, 1, 0, 2, 48.748964))
sketch28.addConstraint(Sketcher.Constraint("DistanceY", 2, 2, -1, 1, 24.73948))
pad28 = body.newObject("PartDesign::Pad", "Pad027")
pad28.Profile = sketch28
pad28.Length = 25
pad28.Reversed = True

# Sketch on XZ plane
sketch29 = body.newObject("Sketcher::SketchObject", "Sketch028")
sketch29.AttachmentSupport = (doc.getObject("XZ_Plane"), [""])
sketch29.MapMode = "FlatFace"
sketch29.AttachmentOffset = App.Placement(V(0, 0, -7), App.Rotation())
add_polygon(sketch29, [(-115, -75), (-115, -26), (-45, -26), (-45, -75)])  # lines 0-3
sketch29.addConstraint(Sketcher.Constraint("Vertical", 0))
sketch29.addConstraint(Sketcher.Constraint("Horizontal", 1))
sketch29.addConstraint(Sketcher.Constraint("Vertical", 2))
sketch29.addConstraint(Sketcher.Constraint("Horizontal", 3))
sketch29.addConstraint(Sketcher.Constraint("DistanceX", 1, 1, 1, 2, 70.0))
sketch29.addConstraint(Sketcher.Constraint("DistanceX", 0, 2, -1, 1, 115.0))
sketch29.addConstraint(Sketcher.Constraint("DistanceY", 0, 1, 0, 2, 48.748964))
sketch29.addConstraint(Sketcher.Constraint("DistanceY", 2, 2, -1, 1, 74.73948))
pad29 = body.newObject("PartDesign::Pad", "Pad028")
pad29.Profile = sketch29
pad29.Length = 25
pad29.Reversed = True

# Sketch on XZ plane
sketch30 = body.newObject("Sketcher::SketchObject", "Sketch029")
sketch30.AttachmentSupport = (doc.getObject("XZ_Plane"), [""])
sketch30.MapMode = "FlatFace"
sketch30.AttachmentOffset = App.Placement(V(0, 0, -7), App.Rotation())
add_polygon(sketch30, [(-195, -75), (-195, -26), (-125, -26), (-125, -75)])  # lines 0-3
sketch30.addConstraint(Sketcher.Constraint("Vertical", 0))
sketch30.addConstraint(Sketcher.Constraint("Horizontal", 1))
sketch30.addConstraint(Sketcher.Constraint("Vertical", 2))
sketch30.addConstraint(Sketcher.Constraint("Horizontal", 3))
sketch30.addConstraint(Sketcher.Constraint("DistanceX", 1, 1, 1, 2, 70.0))
sketch30.addConstraint(Sketcher.Constraint("DistanceX", 0, 2, -1, 1, 195.0))
sketch30.addConstraint(Sketcher.Constraint("DistanceY", 0, 1, 0, 2, 48.748964))
sketch30.addConstraint(Sketcher.Constraint("DistanceY", 2, 2, -1, 1, 74.73948))
pad30 = body.newObject("PartDesign::Pad", "Pad029")
pad30.Profile = sketch30
pad30.Length = 25
pad30.Reversed = True

# Sketch on XZ plane
sketch31 = body.newObject("Sketcher::SketchObject", "Sketch030")
sketch31.AttachmentSupport = (doc.getObject("XZ_Plane"), [""])
sketch31.MapMode = "FlatFace"
sketch31.AttachmentOffset = App.Placement(V(0, 0, -7), App.Rotation())
add_polygon(sketch31, [(-275, -75), (-275, -26), (-205, -26), (-205, -75)])  # lines 0-3
sketch31.addConstraint(Sketcher.Constraint("Vertical", 0))
sketch31.addConstraint(Sketcher.Constraint("Horizontal", 1))
sketch31.addConstraint(Sketcher.Constraint("Vertical", 2))
sketch31.addConstraint(Sketcher.Constraint("Horizontal", 3))
sketch31.addConstraint(Sketcher.Constraint("DistanceX", 1, 1, 1, 2, 70.0))
sketch31.addConstraint(Sketcher.Constraint("DistanceX", 0, 2, -1, 1, 275.0))
sketch31.addConstraint(Sketcher.Constraint("DistanceY", 0, 1, 0, 2, 48.748964))
sketch31.addConstraint(Sketcher.Constraint("DistanceY", 2, 2, -1, 1, 74.73948))
pad31 = body.newObject("PartDesign::Pad", "Pad030")
pad31.Profile = sketch31
pad31.Length = 25
pad31.Reversed = True

# Sketch on XZ plane
sketch32 = body.newObject("Sketcher::SketchObject", "Sketch031")
sketch32.AttachmentSupport = (doc.getObject("XZ_Plane"), [""])
sketch32.MapMode = "FlatFace"
sketch32.AttachmentOffset = App.Placement(V(0, 0, -7), App.Rotation())
add_polygon(sketch32, [(-355, -75), (-355, -26), (-285, -26), (-285, -75)])  # lines 0-3
sketch32.addConstraint(Sketcher.Constraint("Vertical", 0))
sketch32.addConstraint(Sketcher.Constraint("Horizontal", 1))
sketch32.addConstraint(Sketcher.Constraint("Vertical", 2))
sketch32.addConstraint(Sketcher.Constraint("Horizontal", 3))
sketch32.addConstraint(Sketcher.Constraint("DistanceX", 1, 1, 1, 2, 70.0))
sketch32.addConstraint(Sketcher.Constraint("DistanceX", 0, 2, -1, 1, 355.0))
sketch32.addConstraint(Sketcher.Constraint("DistanceY", 0, 1, 0, 2, 48.748964))
sketch32.addConstraint(Sketcher.Constraint("DistanceY", 2, 2, -1, 1, 74.73948))
pad32 = body.newObject("PartDesign::Pad", "Pad031")
pad32.Profile = sketch32
pad32.Length = 25
pad32.Reversed = True

# Sketch on XZ plane
sketch33 = body.newObject("Sketcher::SketchObject", "Sketch032")
sketch33.AttachmentSupport = (doc.getObject("XZ_Plane"), [""])
sketch33.MapMode = "FlatFace"
sketch33.AttachmentOffset = App.Placement(V(0, 0, -7), App.Rotation())
add_polygon(sketch33, [(-435, -75), (-435, -26), (-365, -26), (-365, -75)])  # lines 0-3
sketch33.addConstraint(Sketcher.Constraint("Vertical", 0))
sketch33.addConstraint(Sketcher.Constraint("Horizontal", 1))
sketch33.addConstraint(Sketcher.Constraint("Vertical", 2))
sketch33.addConstraint(Sketcher.Constraint("Horizontal", 3))
sketch33.addConstraint(Sketcher.Constraint("DistanceX", 1, 1, 1, 2, 70.0))
sketch33.addConstraint(Sketcher.Constraint("DistanceX", 0, 2, -1, 1, 435.0))
sketch33.addConstraint(Sketcher.Constraint("DistanceY", 0, 1, 0, 2, 48.748964))
sketch33.addConstraint(Sketcher.Constraint("DistanceY", 2, 2, -1, 1, 74.73948))
pad33 = body.newObject("PartDesign::Pad", "Pad032")
pad33.Profile = sketch33
pad33.Length = 25
pad33.Reversed = True

doc.recompute()
